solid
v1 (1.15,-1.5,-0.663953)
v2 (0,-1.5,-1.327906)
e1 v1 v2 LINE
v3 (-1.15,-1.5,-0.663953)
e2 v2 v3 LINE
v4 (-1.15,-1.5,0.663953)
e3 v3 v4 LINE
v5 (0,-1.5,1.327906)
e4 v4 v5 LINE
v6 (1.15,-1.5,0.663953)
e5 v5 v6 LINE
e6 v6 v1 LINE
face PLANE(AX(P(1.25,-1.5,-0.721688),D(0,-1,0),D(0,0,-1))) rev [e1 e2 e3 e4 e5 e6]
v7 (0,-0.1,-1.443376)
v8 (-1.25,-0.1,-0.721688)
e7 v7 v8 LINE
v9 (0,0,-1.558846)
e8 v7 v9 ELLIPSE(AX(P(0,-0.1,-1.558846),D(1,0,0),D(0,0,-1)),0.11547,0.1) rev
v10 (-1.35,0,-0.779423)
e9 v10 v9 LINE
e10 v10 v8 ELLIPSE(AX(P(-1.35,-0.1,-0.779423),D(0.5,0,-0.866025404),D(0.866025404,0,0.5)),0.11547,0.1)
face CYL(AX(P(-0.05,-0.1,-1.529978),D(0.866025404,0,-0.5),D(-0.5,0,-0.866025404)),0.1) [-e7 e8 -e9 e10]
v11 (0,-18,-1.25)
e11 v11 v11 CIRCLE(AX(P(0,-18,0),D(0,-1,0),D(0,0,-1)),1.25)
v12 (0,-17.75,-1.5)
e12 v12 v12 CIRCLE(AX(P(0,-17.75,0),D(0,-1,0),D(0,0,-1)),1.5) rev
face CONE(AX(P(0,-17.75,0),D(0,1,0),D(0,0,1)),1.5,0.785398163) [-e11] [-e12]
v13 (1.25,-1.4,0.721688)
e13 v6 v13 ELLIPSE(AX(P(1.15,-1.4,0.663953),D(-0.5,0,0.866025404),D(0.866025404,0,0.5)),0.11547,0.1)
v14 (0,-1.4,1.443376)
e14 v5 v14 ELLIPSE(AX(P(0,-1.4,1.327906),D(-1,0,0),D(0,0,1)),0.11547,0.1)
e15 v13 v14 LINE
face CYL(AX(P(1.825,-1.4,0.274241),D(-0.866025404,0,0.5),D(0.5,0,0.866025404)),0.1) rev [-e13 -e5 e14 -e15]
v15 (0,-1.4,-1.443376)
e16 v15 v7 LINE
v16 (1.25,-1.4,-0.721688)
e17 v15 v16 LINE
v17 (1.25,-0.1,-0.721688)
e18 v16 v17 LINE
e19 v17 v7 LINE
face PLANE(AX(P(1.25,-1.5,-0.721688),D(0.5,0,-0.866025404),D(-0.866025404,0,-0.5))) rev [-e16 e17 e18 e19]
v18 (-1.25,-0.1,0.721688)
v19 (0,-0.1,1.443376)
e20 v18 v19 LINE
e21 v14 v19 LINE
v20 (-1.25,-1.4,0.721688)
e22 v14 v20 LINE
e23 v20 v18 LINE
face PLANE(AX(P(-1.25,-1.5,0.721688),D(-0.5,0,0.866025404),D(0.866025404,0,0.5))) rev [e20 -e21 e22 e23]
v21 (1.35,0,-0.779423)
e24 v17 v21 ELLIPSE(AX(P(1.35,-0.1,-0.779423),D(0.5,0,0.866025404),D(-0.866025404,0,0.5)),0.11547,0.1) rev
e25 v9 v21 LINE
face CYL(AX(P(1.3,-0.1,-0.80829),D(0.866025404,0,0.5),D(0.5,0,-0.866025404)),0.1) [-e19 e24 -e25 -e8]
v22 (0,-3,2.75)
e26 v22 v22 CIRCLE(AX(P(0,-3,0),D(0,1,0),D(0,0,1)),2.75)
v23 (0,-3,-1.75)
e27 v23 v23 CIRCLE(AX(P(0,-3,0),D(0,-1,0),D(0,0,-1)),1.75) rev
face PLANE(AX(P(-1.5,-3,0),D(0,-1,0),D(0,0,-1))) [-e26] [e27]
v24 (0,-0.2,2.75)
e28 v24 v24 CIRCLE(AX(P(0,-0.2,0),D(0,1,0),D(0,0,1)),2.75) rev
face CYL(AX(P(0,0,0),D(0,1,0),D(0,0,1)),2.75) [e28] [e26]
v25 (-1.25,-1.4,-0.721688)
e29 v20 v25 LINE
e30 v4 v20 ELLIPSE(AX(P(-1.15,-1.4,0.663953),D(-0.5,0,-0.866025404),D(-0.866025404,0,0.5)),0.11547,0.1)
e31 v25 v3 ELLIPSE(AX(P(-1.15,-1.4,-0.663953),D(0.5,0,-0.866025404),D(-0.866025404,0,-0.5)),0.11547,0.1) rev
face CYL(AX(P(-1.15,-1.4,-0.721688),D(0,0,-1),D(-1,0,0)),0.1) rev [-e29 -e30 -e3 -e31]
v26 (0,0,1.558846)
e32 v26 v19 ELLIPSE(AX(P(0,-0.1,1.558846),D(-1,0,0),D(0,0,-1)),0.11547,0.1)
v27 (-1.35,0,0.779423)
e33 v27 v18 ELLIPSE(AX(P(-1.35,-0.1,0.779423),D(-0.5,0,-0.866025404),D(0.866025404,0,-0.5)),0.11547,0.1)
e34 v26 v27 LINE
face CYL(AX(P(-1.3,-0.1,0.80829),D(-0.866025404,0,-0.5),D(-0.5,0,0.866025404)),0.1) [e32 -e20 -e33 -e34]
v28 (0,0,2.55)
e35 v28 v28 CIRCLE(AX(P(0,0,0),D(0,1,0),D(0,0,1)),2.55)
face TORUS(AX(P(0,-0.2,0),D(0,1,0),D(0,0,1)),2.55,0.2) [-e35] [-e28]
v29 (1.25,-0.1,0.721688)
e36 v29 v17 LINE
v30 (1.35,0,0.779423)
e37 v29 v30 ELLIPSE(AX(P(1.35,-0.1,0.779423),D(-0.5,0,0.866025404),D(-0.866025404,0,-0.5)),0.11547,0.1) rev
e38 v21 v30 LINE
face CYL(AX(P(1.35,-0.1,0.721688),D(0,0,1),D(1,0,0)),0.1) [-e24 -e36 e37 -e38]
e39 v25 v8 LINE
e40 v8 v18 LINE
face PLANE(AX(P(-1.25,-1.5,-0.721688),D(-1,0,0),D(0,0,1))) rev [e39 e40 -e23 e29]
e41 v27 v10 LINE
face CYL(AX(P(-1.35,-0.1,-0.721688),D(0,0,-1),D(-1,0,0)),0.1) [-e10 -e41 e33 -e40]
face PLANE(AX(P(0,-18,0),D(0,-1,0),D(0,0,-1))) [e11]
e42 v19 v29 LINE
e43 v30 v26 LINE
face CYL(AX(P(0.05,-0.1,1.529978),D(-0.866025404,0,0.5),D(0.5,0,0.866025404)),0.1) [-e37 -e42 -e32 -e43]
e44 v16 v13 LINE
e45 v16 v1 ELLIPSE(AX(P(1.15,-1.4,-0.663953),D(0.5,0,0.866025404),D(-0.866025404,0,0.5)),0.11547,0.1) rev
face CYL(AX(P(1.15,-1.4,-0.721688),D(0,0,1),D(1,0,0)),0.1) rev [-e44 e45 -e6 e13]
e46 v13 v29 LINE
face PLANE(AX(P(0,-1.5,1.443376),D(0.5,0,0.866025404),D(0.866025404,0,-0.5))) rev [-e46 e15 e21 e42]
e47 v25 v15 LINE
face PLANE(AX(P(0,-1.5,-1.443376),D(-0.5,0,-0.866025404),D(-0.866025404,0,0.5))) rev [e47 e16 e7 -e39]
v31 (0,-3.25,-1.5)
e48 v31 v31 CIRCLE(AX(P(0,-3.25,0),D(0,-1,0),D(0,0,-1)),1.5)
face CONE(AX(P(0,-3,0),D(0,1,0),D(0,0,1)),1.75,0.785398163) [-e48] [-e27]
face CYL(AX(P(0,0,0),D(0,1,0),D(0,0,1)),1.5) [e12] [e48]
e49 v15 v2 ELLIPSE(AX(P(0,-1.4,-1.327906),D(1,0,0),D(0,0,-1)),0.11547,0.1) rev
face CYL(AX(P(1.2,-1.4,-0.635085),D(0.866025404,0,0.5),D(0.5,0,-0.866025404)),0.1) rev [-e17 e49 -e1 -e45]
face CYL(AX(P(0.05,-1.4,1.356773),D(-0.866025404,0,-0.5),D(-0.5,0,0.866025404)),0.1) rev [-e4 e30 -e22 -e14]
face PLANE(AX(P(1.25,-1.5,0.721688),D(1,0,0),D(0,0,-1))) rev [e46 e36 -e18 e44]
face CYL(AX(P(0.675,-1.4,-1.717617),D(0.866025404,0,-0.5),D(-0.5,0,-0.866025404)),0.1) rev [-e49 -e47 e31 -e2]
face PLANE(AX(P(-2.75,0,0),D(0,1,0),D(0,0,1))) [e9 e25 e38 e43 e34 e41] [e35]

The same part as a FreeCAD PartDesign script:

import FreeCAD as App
import Part
import Sketcher

V = App.Vector
Q = App.Units.Quantity


def edges_at(feature, points):
    """Names of the edges that pass closest to the given points."""
    edges = feature.Shape.Edges
    near = lambda p: min(range(len(edges)), key=lambda i: edges[i].distToShape(Part.Vertex(*p))[0])
    return sorted({f"Edge{near(p) + 1}" for p in points})

doc = App.newDocument("Part")
body = doc.addObject("PartDesign::Body", "Body")

sketch1 = body.newObject("Sketcher::SketchObject", "Sketch")
sketch1.AttachmentSupport = (doc.getObject("XY_Plane"), [""])
sketch1.MapMode = "FlatFace"
sketch1.addGeometry(Part.LineSegment(V(-1.5, -18, 0), V(0, -18, 0)), False)
sketch1.addGeometry(Part.LineSegment(V(0, -18, 0), V(0, 0, 0)), False)
sketch1.addGeometry(Part.LineSegment(V(0, 0, 0), V(-2.75, 0, 0)), False)
sketch1.addGeometry(Part.LineSegment(V(-2.75, 0, 0), V(-2.75, -3, 0)), False)
sketch1.addGeometry(Part.LineSegment(V(-2.75, -3, 0), V(-1.5, -3, 0)), False)
sketch1.addGeometry(Part.LineSegment(V(-1.5, -3, 0), V(-1.5, -18, 0)), False)
sketch1.addConstraint(Sketcher.Constraint("Coincident", 0, 2, 1, 1))
sketch1.addConstraint(Sketcher.Constraint("Coincident", 1, 2, 2, 1))
sketch1.addConstraint(Sketcher.Constraint("Coincident", 2, 2, 3, 1))
sketch1.addConstraint(Sketcher.Constraint("Coincident", 3, 2, 4, 1))
sketch1.addConstraint(Sketcher.Constraint("Coincident", 4, 2, 5, 1))
sketch1.addConstraint(Sketcher.Constraint("Coincident", 5, 2, 0, 1))
sketch1.addConstraint(Sketcher.Constraint("Horizontal", 0))
sketch1.addConstraint(Sketcher.Constraint("Vertical", 1))
sketch1.addConstraint(Sketcher.Constraint("Horizontal", 2))
sketch1.addConstraint(Sketcher.Constraint("Vertical", 3))
sketch1.addConstraint(Sketcher.Constraint("Horizontal", 4))
sketch1.addConstraint(Sketcher.Constraint("Vertical", 5))
sketch1.addConstraint(Sketcher.Constraint("Coincident", 1, 2, -1, 1))
sketch1.addConstraint(Sketcher.Constraint("DistanceY", 1, 1, 1, 2, 18.0))
sketch1.addConstraint(Sketcher.Constraint("DistanceY", 3, 2, 3, 1, 3.0))
sketch1.addConstraint(Sketcher.Constraint("DistanceX", 0, 1, 0, 2, 1.5))
sketch1.addConstraint(Sketcher.Constraint("DistanceX", 2, 2, 2, 1, 2.75))
revolution = body.newObject("PartDesign::Revolution", "Revolution")
revolution.Profile = sketch1
revolution.ReferenceAxis = (sketch1, ["V_Axis"])
revolution.Angle = 360
doc.recompute()

chamfer = body.newObject("PartDesign::Chamfer", "Chamfer")
chamfer.Base = (revolution, edges_at(revolution, [(0, -3, -1.5), (0, -18, -1.5)]))
chamfer.Size = 0.25
doc.recompute()

fillet = body.newObject("PartDesign::Fillet", "Fillet")
fillet.Base = (chamfer, edges_at(chamfer, [(0, 0, -2.75)]))
fillet.Radius = 0.2

sketch2 = body.newObject("Sketcher::SketchObject", "Sketch001")
sketch2.AttachmentSupport = (doc.getObject("XZ_Plane"), [""])
sketch2.MapMode = "FlatFace"
sketch2.addGeometry(Part.LineSegment(V(0, -1.443376, 0), V(-1.25, -0.721688, 0)), False)
sketch2.addGeometry(Part.LineSegment(V(-1.25, -0.721688, 0), V(-1.25, 0.721688, 0)), False)
sketch2.addGeometry(Part.LineSegment(V(-1.25, 0.721688, 0), V(0, 1.443376, 0)), False)
sketch2.addGeometry(Part.LineSegment(V(0, 1.443376, 0), V(1.25, 0.721688, 0)), False)
sketch2.addGeometry(Part.LineSegment(V(1.25, 0.721688, 0), V(1.25, -0.721688, 0)), False)
sketch2.addGeometry(Part.LineSegment(V(1.25, -0.721688, 0), V(0, -1.443376, 0)), False)
sketch2.addConstraint(Sketcher.Constraint("Coincident", 0, 2, 1, 1))
sketch2.addConstraint(Sketcher.Constraint("Coincident", 1, 2, 2, 1))
sketch2.addConstraint(Sketcher.Constraint("Coincident", 2, 2, 3, 1))
sketch2.addConstraint(Sketcher.Constraint("Coincident", 3, 2, 4, 1))
sketch2.addConstraint(Sketcher.Constraint("Coincident", 4, 2, 5, 1))
sketch2.addConstraint(Sketcher.Constraint("Coincident", 5, 2, 0, 1))
sketch2.addConstraint(Sketcher.Constraint("Vertical", 1))
sketch2.addConstraint(Sketcher.Constraint("Vertical", 4))
sketch2.addConstraint(Sketcher.Constraint("Symmetric", 0, 2, 3, 2, -1, 1))
sketch2.addConstraint(Sketcher.Constraint("Symmetric", 2, 2, 5, 2, -1, 1))
sketch2.addConstraint(Sketcher.Constraint("PointOnObject", 2, 2, -2))
sketch2.addConstraint(Sketcher.Constraint("Parallel", 2, 5))
sketch2.addConstraint(Sketcher.Constraint("Horizontal", 1, 2, 3, 2))
sketch2.addConstraint(Sketcher.Constraint("Angle", 0, Q("150 deg")))
sketch2.addConstraint(Sketcher.Constraint("DistanceX", 1, 2, 3, 2, 2.5))
sketch2.addConstraint(Sketcher.Constraint("DistanceY", 1, 1, 1, 2, 1.443376))
pocket1 = body.newObject("PartDesign::Pocket", "Pocket")
pocket1.Profile = sketch2
pocket1.Length = 1.5
pocket1.Reversed = True
doc.recompute()

fillet2 = body.newObject("PartDesign::Fillet", "Fillet001")
fillet2.Base = (pocket1, edges_at(pocket1, [
    (0.625, -1.5, -1.083),
    (1.25, -1.5, 0),
    (0.625, -1.5, 1.083),
    (-0.625, -1.5, 1.083),
    (-1.25, -1.5, 0),
    (-0.625, -1.5, -1.083),
    (0.625, 0, -1.083),
    (-0.625, 0, -1.083),
    (-1.25, 0, 0),
    (-0.625, 0, 1.083),
    (0.625, 0, 1.083),
    (1.25, 0, 0),
]))
fillet2.Radius = 0.1

doc.recompute()
